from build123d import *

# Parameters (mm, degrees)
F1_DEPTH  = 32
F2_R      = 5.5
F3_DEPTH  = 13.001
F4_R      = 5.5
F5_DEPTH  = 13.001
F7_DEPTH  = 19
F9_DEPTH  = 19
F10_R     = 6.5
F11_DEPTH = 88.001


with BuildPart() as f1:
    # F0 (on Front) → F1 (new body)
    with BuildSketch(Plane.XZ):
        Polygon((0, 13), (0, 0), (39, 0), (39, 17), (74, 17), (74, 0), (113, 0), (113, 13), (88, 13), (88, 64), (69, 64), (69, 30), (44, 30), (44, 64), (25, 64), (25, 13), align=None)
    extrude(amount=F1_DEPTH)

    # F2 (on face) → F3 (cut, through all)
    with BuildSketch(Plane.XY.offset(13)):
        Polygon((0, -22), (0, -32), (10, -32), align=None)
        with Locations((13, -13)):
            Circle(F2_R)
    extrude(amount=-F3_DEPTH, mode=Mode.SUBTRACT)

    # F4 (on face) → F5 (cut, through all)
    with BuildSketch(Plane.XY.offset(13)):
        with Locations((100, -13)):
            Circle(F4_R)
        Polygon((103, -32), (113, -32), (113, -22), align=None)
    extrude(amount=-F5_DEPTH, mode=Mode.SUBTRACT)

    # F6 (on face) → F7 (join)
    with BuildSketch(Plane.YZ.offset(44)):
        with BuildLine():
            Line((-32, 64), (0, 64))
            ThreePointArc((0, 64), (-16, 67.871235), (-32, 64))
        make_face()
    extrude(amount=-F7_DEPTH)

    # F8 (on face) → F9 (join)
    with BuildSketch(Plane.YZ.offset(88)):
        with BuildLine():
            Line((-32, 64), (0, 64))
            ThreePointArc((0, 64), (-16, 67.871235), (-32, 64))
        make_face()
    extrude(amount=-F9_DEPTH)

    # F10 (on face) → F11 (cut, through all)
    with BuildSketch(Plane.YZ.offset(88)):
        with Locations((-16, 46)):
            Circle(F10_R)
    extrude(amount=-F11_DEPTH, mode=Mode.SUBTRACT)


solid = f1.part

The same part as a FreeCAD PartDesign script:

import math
import FreeCAD as App
import Part
import Sketcher
from FreeCAD import Vector
Q = App.Units.Quantity

doc = App.newDocument("Part")
body = doc.addObject("PartDesign::Body", "Body")

# Sketch on XZ plane
sketch1 = body.newObject("Sketcher::SketchObject", "Sketch")
sketch1.AttachmentSupport = (doc.getObject("XZ_Plane"), [""])
sketch1.MapMode = "FlatFace"
sketch1.addGeometry(Part.LineSegment(Vector(0, 13, 0), Vector(0, 0, 0)), False)
sketch1.addGeometry(Part.LineSegment(Vector(0, 0, 0), Vector(39, 0, 0)), False)
sketch1.addGeometry(Part.LineSegment(Vector(39, 0, 0), Vector(39, 17, 0)), False)
sketch1.addGeometry(Part.LineSegment(Vector(39, 17, 0), Vector(74, 17, 0)), False)
sketch1.addGeometry(Part.LineSegment(Vector(74, 17, 0), Vector(74, 0, 0)), False)
sketch1.addGeometry(Part.LineSegment(Vector(74, 0, 0), Vector(113, 0, 0)), False)
sketch1.addGeometry(Part.LineSegment(Vector(113, 0, 0), Vector(113, 13, 0)), False)
sketch1.addGeometry(Part.LineSegment(Vector(113, 13, 0), Vector(88, 13, 0)), False)
sketch1.addGeometry(Part.LineSegment(Vector(88, 13, 0), Vector(88, 64, 0)), False)
sketch1.addGeometry(Part.LineSegment(Vector(88, 64, 0), Vector(69, 64, 0)), False)
sketch1.addGeometry(Part.LineSegment(Vector(69, 64, 0), Vector(69, 30, 0)), False)
sketch1.addGeometry(Part.LineSegment(Vector(69, 30, 0), Vector(44, 30, 0)), False)
sketch1.addGeometry(Part.LineSegment(Vector(44, 30, 0), Vector(44, 64, 0)), False)
sketch1.addGeometry(Part.LineSegment(Vector(44, 64, 0), Vector(25, 64, 0)), False)
sketch1.addGeometry(Part.LineSegment(Vector(25, 64, 0), Vector(25, 13, 0)), False)
sketch1.addGeometry(Part.LineSegment(Vector(25, 13, 0), Vector(0, 13, 0)), False)
sketch1.addConstraint(Sketcher.Constraint("Coincident", 0, 2, 1, 1))
sketch1.addConstraint(Sketcher.Constraint("Coincident", 1, 2, 2, 1))
sketch1.addConstraint(Sketcher.Constraint("Coincident", 2, 2, 3, 1))
sketch1.addConstraint(Sketcher.Constraint("Coincident", 3, 2, 4, 1))
sketch1.addConstraint(Sketcher.Constraint("Coincident", 4, 2, 5, 1))
sketch1.addConstraint(Sketcher.Constraint("Coincident", 5, 2, 6, 1))
sketch1.addConstraint(Sketcher.Constraint("Coincident", 6, 2, 7, 1))
sketch1.addConstraint(Sketcher.Constraint("Coincident", 7, 2, 8, 1))
sketch1.addConstraint(Sketcher.Constraint("Coincident", 8, 2, 9, 1))
sketch1.addConstraint(Sketcher.Constraint("Coincident", 9, 2, 10, 1))
sketch1.addConstraint(Sketcher.Constraint("Coincident", 10, 2, 11, 1))
sketch1.addConstraint(Sketcher.Constraint("Coincident", 11, 2, 12, 1))
sketch1.addConstraint(Sketcher.Constraint("Coincident", 12, 2, 13, 1))
sketch1.addConstraint(Sketcher.Constraint("Coincident", 13, 2, 14, 1))
sketch1.addConstraint(Sketcher.Constraint("Coincident", 14, 2, 15, 1))
sketch1.addConstraint(Sketcher.Constraint("Coincident", 15, 2, 0, 1))
sketch1.addConstraint(Sketcher.Constraint("Vertical", 0))
sketch1.addConstraint(Sketcher.Constraint("Horizontal", 1))
sketch1.addConstraint(Sketcher.Constraint("Vertical", 2))
sketch1.addConstraint(Sketcher.Constraint("Horizontal", 3))
sketch1.addConstraint(Sketcher.Constraint("Vertical", 4))
sketch1.addConstraint(Sketcher.Constraint("Horizontal", 5))
sketch1.addConstraint(Sketcher.Constraint("Vertical", 6))
sketch1.addConstraint(Sketcher.Constraint("Horizontal", 7))
sketch1.addConstraint(Sketcher.Constraint("Vertical", 8))
sketch1.addConstraint(Sketcher.Constraint("Horizontal", 9))
sketch1.addConstraint(Sketcher.Constraint("Vertical", 10))
sketch1.addConstraint(Sketcher.Constraint("Horizontal", 11))
sketch1.addConstraint(Sketcher.Constraint("Vertical", 12))
sketch1.addConstraint(Sketcher.Constraint("Horizontal", 13))
sketch1.addConstraint(Sketcher.Constraint("Vertical", 14))
sketch1.addConstraint(Sketcher.Constraint("Horizontal", 15))
sketch1.addConstraint(Sketcher.Constraint("Coincident", 0, 2, -1, 1))
sketch1.addConstraint(Sketcher.Constraint("PointOnObject", 4, 2, -1))
sketch1.addConstraint(Sketcher.Constraint("Horizontal", 9, 2, 12, 2))
sketch1.addConstraint(Sketcher.Constraint("Horizontal", 7, 2, 14, 2))
sketch1.addConstraint(Sketcher.Constraint("Equal", 1, 5))
sketch1.addConstraint(Sketcher.Constraint("Equal", 7, 11))
sketch1.addConstraint(Sketcher.Constraint("Equal", 9, 13))
sketch1.addConstraint(Sketcher.Constraint("Equal", 11, 15))
sketch1.addConstraint(Sketcher.Constraint("DistanceX", 1, 1, 1, 2, Q("39 mm")))
sketch1.addConstraint(Sketcher.Constraint("DistanceX", 3, 1, 3, 2, Q("35 mm")))
sketch1.addConstraint(Sketcher.Constraint("DistanceX", 7, 2, 7, 1, Q("25 mm")))
sketch1.addConstraint(Sketcher.Constraint("DistanceY", 0, 2, 0, 1, Q("13 mm")))
sketch1.addConstraint(Sketcher.Constraint("DistanceY", 2, 1, 2, 2, Q("17 mm")))
sketch1.addConstraint(Sketcher.Constraint("DistanceY", 8, 1, 8, 2, Q("51 mm")))
sketch1.addConstraint(Sketcher.Constraint("DistanceY", 10, 2, 10, 1, Q("34 mm")))
pad1 = body.newObject("PartDesign::Pad", "Pad")
pad1.Profile = sketch1
pad1.Length = 32

# Sketch on XY plane
sketch2 = body.newObject("Sketcher::SketchObject", "Sketch001")
sketch2.AttachmentSupport = (doc.getObject("XY_Plane"), [""])
sketch2.MapMode = "FlatFace"
sketch2.AttachmentOffset = App.Placement(Vector(0, 0, 13), App.Rotation())
sketch2.addGeometry(Part.LineSegment(Vector(0, -22, 0), Vector(0, -32, 0)), False)
sketch2.addGeometry(Part.LineSegment(Vector(0, -32, 0), Vector(10, -32, 0)), False)
sketch2.addGeometry(Part.LineSegment(Vector(10, -32, 0), Vector(0, -22, 0)), False)
sketch2.addGeometry(Part.Circle(Vector(13, -13, 0), Vector(0, 0, 1), 6), False)
sketch2.addConstraint(Sketcher.Constraint("Coincident", 0, 2, 1, 1))
sketch2.addConstraint(Sketcher.Constraint("Coincident", 1, 2, 2, 1))
sketch2.addConstraint(Sketcher.Constraint("Coincident", 2, 2, 0, 1))
sketch2.addConstraint(Sketcher.Constraint("Vertical", 0))
sketch2.addConstraint(Sketcher.Constraint("Horizontal", 1))
sketch2.addConstraint(Sketcher.Constraint("PointOnObject", 0, 2, -2))
sketch2.addConstraint(Sketcher.Constraint("Equal", 1, 0))
sketch2.addConstraint(Sketcher.Constraint("Diameter", 3, Q("11 mm")))
sketch2.addConstraint(Sketcher.Constraint("DistanceX", 1, 1, 1, 2, Q("10 mm")))
sketch2.addConstraint(Sketcher.Constraint("DistanceX", -1, 1, 3, 3, Q("13 mm")))
sketch2.addConstraint(Sketcher.Constraint("DistanceY", 3, 3, -1, 1, Q("13 mm")))
sketch2.addConstraint(Sketcher.Constraint("DistanceY", 0, 2, -1, 1, Q("32 mm")))
pocket1 = body.newObject("PartDesign::Pocket", "Pocket")
pocket1.Profile = sketch2
pocket1.Type = "ThroughAll"

# Sketch on XY plane
sketch3 = body.newObject("Sketcher::SketchObject", "Sketch002")
sketch3.AttachmentSupport = (doc.getObject("XY_Plane"), [""])
sketch3.MapMode = "FlatFace"
sketch3.AttachmentOffset = App.Placement(Vector(0, 0, 13), App.Rotation())
sketch3.addGeometry(Part.Circle(Vector(100, -13, 0), Vector(0, 0, 1), 6), False)
sketch3.addGeometry(Part.LineSegment(Vector(103, -32, 0), Vector(113, -32, 0)), False)
sketch3.addGeometry(Part.LineSegment(Vector(113, -32, 0), Vector(113, -22, 0)), False)
sketch3.addGeometry(Part.LineSegment(Vector(113, -22, 0), Vector(103, -32, 0)), False)
sketch3.addConstraint(Sketcher.Constraint("Coincident", 1, 2, 2, 1))
sketch3.addConstraint(Sketcher.Constraint("Coincident", 2, 2, 3, 1))
sketch3.addConstraint(Sketcher.Constraint("Coincident", 3, 2, 1, 1))
sketch3.addConstraint(Sketcher.Constraint("Horizontal", 1))
sketch3.addConstraint(Sketcher.Constraint("Vertical", 2))
sketch3.addConstraint(Sketcher.Constraint("Equal", 1, 2))
sketch3.addConstraint(Sketcher.Constraint("Diameter", 0, Q("11 mm")))
sketch3.addConstraint(Sketcher.Constraint("DistanceX", 1, 1, 1, 2, Q("10 mm")))
sketch3.addConstraint(Sketcher.Constraint("DistanceX", -1, 1, 0, 3, Q("100 mm")))
sketch3.addConstraint(Sketcher.Constraint("DistanceY", 0, 3, -1, 1, Q("13 mm")))
sketch3.addConstraint(Sketcher.Constraint("DistanceX", -1, 1, 1, 2, Q("113 mm")))
sketch3.addConstraint(Sketcher.Constraint("DistanceY", 1, 2, -1, 1, Q("32 mm")))
pocket2 = body.newObject("PartDesign::Pocket", "Pocket001")
pocket2.Profile = sketch3
pocket2.Type = "ThroughAll"

# Sketch on YZ plane
sketch4 = body.newObject("Sketcher::SketchObject", "Sketch003")
sketch4.AttachmentSupport = (doc.getObject("YZ_Plane"), [""])
sketch4.MapMode = "FlatFace"
sketch4.AttachmentOffset = App.Placement(Vector(0, 0, 44), App.Rotation())
sketch4.addGeometry(Part.LineSegment(Vector(-32, 64, 0), Vector(0, 64, 0)), False)
sketch4.addGeometry(Part.ArcOfCircle(Part.Circle(Vector(-16, 33, 0), Vector(0, 0, 1), 35), math.radians(63), math.radians(117)), False)
sketch4.addConstraint(Sketcher.Constraint("Coincident", 0, 1, 1, 2))
sketch4.addConstraint(Sketcher.Constraint("Coincident", 1, 1, 0, 2))
sketch4.addConstraint(Sketcher.Constraint("Horizontal", 0))
sketch4.addConstraint(Sketcher.Constraint("PointOnObject", 1, 1, -2))
sketch4.addConstraint(Sketcher.Constraint("Radius", 1, Q("35.000001 mm")))
sketch4.addConstraint(Sketcher.Constraint("DistanceX", 0, 1, 0, 2, Q("32 mm")))
sketch4.addConstraint(Sketcher.Constraint("DistanceY", -1, 1, 0, 1, Q("64 mm")))
pad2 = body.newObject("PartDesign::Pad", "Pad001")
pad2.Profile = sketch4
pad2.Length = 19
pad2.Reversed = True

# Sketch on YZ plane
sketch5 = body.newObject("Sketcher::SketchObject", "Sketch004")
sketch5.AttachmentSupport = (doc.getObject("YZ_Plane"), [""])
sketch5.MapMode = "FlatFace"
sketch5.AttachmentOffset = App.Placement(Vector(0, 0, 88), App.Rotation())
sketch5.addGeometry(Part.LineSegment(Vector(-32, 64, 0), Vector(0, 64, 0)), False)
sketch5.addGeometry(Part.ArcOfCircle(Part.Circle(Vector(-16, 33, 0), Vector(0, 0, 1), 35), math.radians(63), math.radians(117)), False)
sketch5.addConstraint(Sketcher.Constraint("Coincident", 0, 1, 1, 2))
sketch5.addConstraint(Sketcher.Constraint("Coincident", 1, 1, 0, 2))
sketch5.addConstraint(Sketcher.Constraint("Horizontal", 0))
sketch5.addConstraint(Sketcher.Constraint("PointOnObject", 1, 1, -2))
sketch5.addConstraint(Sketcher.Constraint("Radius", 1, Q("35.000001 mm")))
sketch5.addConstraint(Sketcher.Constraint("DistanceX", 0, 1, 0, 2, Q("32 mm")))
sketch5.addConstraint(Sketcher.Constraint("DistanceY", -1, 1, 0, 1, Q("64 mm")))
pad3 = body.newObject("PartDesign::Pad", "Pad002")
pad3.Profile = sketch5
pad3.Length = 19
pad3.Reversed = True

# Sketch on YZ plane
sketch6 = body.newObject("Sketcher::SketchObject", "Sketch005")
sketch6.AttachmentSupport = (doc.getObject("YZ_Plane"), [""])
sketch6.MapMode = "FlatFace"
sketch6.AttachmentOffset = App.Placement(Vector(0, 0, 88), App.Rotation())
sketch6.addGeometry(Part.Circle(Vector(-16, 46, 0), Vector(0, 0, 1), 6), False)
sketch6.addConstraint(Sketcher.Constraint("Diameter", 0, Q("13 mm")))
sketch6.addConstraint(Sketcher.Constraint("DistanceX", 0, 3, -1, 1, Q("16 mm")))
sketch6.addConstraint(Sketcher.Constraint("DistanceY", -1, 1, 0, 3, Q("46 mm")))
pocket3 = body.newObject("PartDesign::Pocket", "Pocket002")
pocket3.Profile = sketch6
pocket3.Type = "ThroughAll"

doc.recompute()
